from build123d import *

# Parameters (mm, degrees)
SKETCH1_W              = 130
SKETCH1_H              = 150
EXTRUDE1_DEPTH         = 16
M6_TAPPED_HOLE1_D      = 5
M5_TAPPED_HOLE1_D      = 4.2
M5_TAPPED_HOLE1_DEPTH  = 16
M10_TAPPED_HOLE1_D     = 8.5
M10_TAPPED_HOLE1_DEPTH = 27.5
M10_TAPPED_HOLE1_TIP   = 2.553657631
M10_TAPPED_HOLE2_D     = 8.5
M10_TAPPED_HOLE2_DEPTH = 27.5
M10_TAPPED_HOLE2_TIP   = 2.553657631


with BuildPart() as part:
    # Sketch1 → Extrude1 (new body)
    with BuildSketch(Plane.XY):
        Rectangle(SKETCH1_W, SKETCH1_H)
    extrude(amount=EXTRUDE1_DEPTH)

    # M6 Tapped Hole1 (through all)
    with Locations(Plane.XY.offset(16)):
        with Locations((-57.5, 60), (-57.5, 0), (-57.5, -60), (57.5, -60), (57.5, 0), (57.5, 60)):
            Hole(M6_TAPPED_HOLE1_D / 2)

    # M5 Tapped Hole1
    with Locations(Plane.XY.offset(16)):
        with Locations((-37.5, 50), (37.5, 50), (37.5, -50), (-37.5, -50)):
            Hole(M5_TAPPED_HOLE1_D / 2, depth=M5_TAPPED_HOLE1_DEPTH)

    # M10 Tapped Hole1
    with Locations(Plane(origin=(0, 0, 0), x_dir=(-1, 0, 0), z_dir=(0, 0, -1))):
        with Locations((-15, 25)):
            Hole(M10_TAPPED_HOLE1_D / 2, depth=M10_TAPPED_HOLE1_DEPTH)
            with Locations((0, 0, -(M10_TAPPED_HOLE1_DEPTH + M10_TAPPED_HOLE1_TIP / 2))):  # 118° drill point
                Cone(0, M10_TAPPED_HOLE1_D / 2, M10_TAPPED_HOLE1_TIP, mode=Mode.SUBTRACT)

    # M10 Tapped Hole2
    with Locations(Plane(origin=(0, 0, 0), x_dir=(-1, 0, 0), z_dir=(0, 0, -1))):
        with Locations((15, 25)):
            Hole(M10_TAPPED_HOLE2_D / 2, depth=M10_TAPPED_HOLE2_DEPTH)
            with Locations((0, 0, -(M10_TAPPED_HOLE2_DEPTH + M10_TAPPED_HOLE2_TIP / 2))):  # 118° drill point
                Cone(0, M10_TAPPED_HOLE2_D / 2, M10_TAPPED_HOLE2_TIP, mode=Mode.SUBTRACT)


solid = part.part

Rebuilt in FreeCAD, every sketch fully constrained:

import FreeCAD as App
import Part
import Sketcher

doc = App.newDocument("Part")
params = doc.addObject("Spreadsheet::Sheet", "Params")
for row, (alias, value) in enumerate([
    ("sketch1_width", "130 mm"),
    ("sketch1_height", "150 mm"),
    ("pad1_length", "16 mm"),
    ("sketch2_diameter", "5 mm"),
    ("hole_diameter", "5 mm"),
    ("sketch3_diameter", "4.2 mm"),
    ("hole2_diameter", "4.2 mm"),
    ("hole2_depth", "16 mm"),
    ("sketch4_diameter", "8.5 mm"),
    ("hole3_diameter", "8.5 mm"),
    ("hole3_depth", "27.5 mm"),
    ("sketch5_diameter", "8.5 mm"),
    ("hole4_diameter", "8.5 mm"),
    ("hole4_depth", "27.5 mm"),
], start=1):
    params.set(f"A{row}", alias)
    params.set(f"B{row}", "=" + value)
    params.setAlias(f"B{row}", alias)

body = doc.addObject("PartDesign::Body", "Body")

sketch1 = doc.addObject("Sketcher::SketchObject", "Sketch")
body.addObject(sketch1)
sketch1.AttachmentSupport = (doc.XY_Plane, [""])
sketch1.MapMode = "FlatFace"
sketch1.addGeometry(Part.LineSegment(App.Vector(-65, 75, 0), App.Vector(-65, -75, 0)), False)
sketch1.addGeometry(Part.LineSegment(App.Vector(-65, -75, 0), App.Vector(65, -75, 0)), False)
sketch1.addGeometry(Part.LineSegment(App.Vector(65, -75, 0), App.Vector(65, 75, 0)), False)
sketch1.addGeometry(Part.LineSegment(App.Vector(65, 75, 0), App.Vector(-65, 75, 0)), False)
sketch1.addConstraint(Sketcher.Constraint("Coincident", 0, 2, 1, 1))
sketch1.addConstraint(Sketcher.Constraint("Coincident", 1, 2, 2, 1))
sketch1.addConstraint(Sketcher.Constraint("Coincident", 2, 2, 3, 1))
sketch1.addConstraint(Sketcher.Constraint("Coincident", 3, 2, 0, 1))
sketch1.addConstraint(Sketcher.Constraint("Vertical", 0))
sketch1.addConstraint(Sketcher.Constraint("Horizontal", 1))
sketch1.addConstraint(Sketcher.Constraint("Vertical", 2))
sketch1.addConstraint(Sketcher.Constraint("Horizontal", 3))
sketch1.addConstraint(Sketcher.Constraint("Symmetric", 0, 2, 2, 2, -1, 1))
sketch1.addConstraint(Sketcher.Constraint("DistanceX", 1, 1, 1, 2, 130.0))
sketch1.addConstraint(Sketcher.Constraint("DistanceY", 0, 2, 0, 1, 150.0))
sketch1.setExpression("Constraints[9]", "Params.sketch1_width")
sketch1.setExpression("Constraints[10]", "Params.sketch1_height")
pad1 = doc.addObject("PartDesign::Pad", "Pad")
body.addObject(pad1)
pad1.Profile = sketch1
pad1.setExpression("Length", "Params.pad1_length")

sketch2 = doc.addObject("Sketcher::SketchObject", "Sketch001")
body.addObject(sketch2)
sketch2.AttachmentSupport = (doc.XY_Plane, [""])
sketch2.MapMode = "FlatFace"
sketch2.AttachmentOffset = App.Placement(App.Vector(0, 0, 16), App.Rotation())
sketch2.addGeometry(Part.Circle(App.Vector(-57.5, 60, 0), App.Vector(0, 0, 1), 2.5), False)
sketch2.addGeometry(Part.Circle(App.Vector(-57.5, 0, 0), App.Vector(0, 0, 1), 2.5), False)
sketch2.addGeometry(Part.Circle(App.Vector(-57.5, -60, 0), App.Vector(0, 0, 1), 2.5), False)
sketch2.addGeometry(Part.Circle(App.Vector(57.5, -60, 0), App.Vector(0, 0, 1), 2.5), False)
sketch2.addGeometry(Part.Circle(App.Vector(57.5, 0, 0), App.Vector(0, 0, 1), 2.5), False)
sketch2.addGeometry(Part.Circle(App.Vector(57.5, 60, 0), App.Vector(0, 0, 1), 2.5), False)
sketch2.addConstraint(Sketcher.Constraint("Equal", 0, 1))
sketch2.addConstraint(Sketcher.Constraint("Equal", 1, 2))
sketch2.addConstraint(Sketcher.Constraint("Equal", 2, 3))
sketch2.addConstraint(Sketcher.Constraint("Equal", 3, 4))
sketch2.addConstraint(Sketcher.Constraint("Equal", 4, 5))
sketch2.addConstraint(Sketcher.Constraint("Symmetric", 0, 3, 3, 3, -1, 1))
sketch2.addConstraint(Sketcher.Constraint("Symmetric", 1, 3, 4, 3, -1, 1))
sketch2.addConstraint(Sketcher.Constraint("Symmetric", 2, 3, 5, 3, -1, 1))
sketch2.addConstraint(Sketcher.Constraint("Symmetric", 2, 3, 3, 3, -2))
sketch2.addConstraint(Sketcher.Constraint("PointOnObject", 1, 3, -1))
sketch2.addConstraint(Sketcher.Constraint("Vertical", 0, 3, 1, 3))
sketch2.addConstraint(Sketcher.Constraint("Diameter", 0, 5.0))
sketch2.addConstraint(Sketcher.Constraint("DistanceY", -1, 1, 0, 3, 60.0))
sketch2.addConstraint(Sketcher.Constraint("DistanceX", 2, 3, 3, 3, 115.0))
sketch2.setExpression("Constraints[11]", "Params.sketch2_diameter")
doc.recompute()
hole = doc.addObject("PartDesign::Hole", "Hole")
body.addObject(hole)
hole.Profile = sketch2
hole.ThreadType = "None"
hole.setExpression("Diameter", "Params.hole_diameter")
hole.DepthType = "ThroughAll"

sketch3 = doc.addObject("Sketcher::SketchObject", "Sketch002")
body.addObject(sketch3)
sketch3.AttachmentSupport = (doc.XY_Plane, [""])
sketch3.MapMode = "FlatFace"
sketch3.AttachmentOffset = App.Placement(App.Vector(0, 0, 16), App.Rotation())
sketch3.addGeometry(Part.Circle(App.Vector(-37.5, 50, 0), App.Vector(0, 0, 1), 2.1), False)
sketch3.addGeometry(Part.Circle(App.Vector(37.5, 50, 0), App.Vector(0, 0, 1), 2.1), False)
sketch3.addGeometry(Part.Circle(App.Vector(37.5, -50, 0), App.Vector(0, 0, 1), 2.1), False)
sketch3.addGeometry(Part.Circle(App.Vector(-37.5, -50, 0), App.Vector(0, 0, 1), 2.1), False)
sketch3.addConstraint(Sketcher.Constraint("Equal", 0, 1))
sketch3.addConstraint(Sketcher.Constraint("Equal", 1, 2))
sketch3.addConstraint(Sketcher.Constraint("Equal", 2, 3))
sketch3.addConstraint(Sketcher.Constraint("Symmetric", 0, 3, 2, 3, -1, 1))
sketch3.addConstraint(Sketcher.Constraint("Symmetric", 1, 3, 3, 3, -1, 1))
sketch3.addConstraint(Sketcher.Constraint("Symmetric", 0, 3, 1, 3, -2))
sketch3.addConstraint(Sketcher.Constraint("Diameter", 0, 4.2))
sketch3.addConstraint(Sketcher.Constraint("DistanceY", -1, 1, 0, 3, 50.0))
sketch3.addConstraint(Sketcher.Constraint("DistanceX", 0, 3, 1, 3, 75.0))
sketch3.setExpression("Constraints[6]", "Params.sketch3_diameter")
doc.recompute()
hole2 = doc.addObject("PartDesign::Hole", "Hole001")
body.addObject(hole2)
hole2.Profile = sketch3
hole2.ThreadType = "None"
hole2.setExpression("Diameter", "Params.hole2_diameter")
hole2.DepthType = "Dimension"
hole2.setExpression("Depth", "Params.hole2_depth")
hole2.DrillPoint = "Flat"

sketch4 = doc.addObject("Sketcher::SketchObject", "Sketch003")
body.addObject(sketch4)
sketch4.AttachmentSupport = (doc.XY_Plane, [""])
sketch4.MapMode = "FlatFace"
sketch4.addGeometry(Part.Circle(App.Vector(15, 25, 0), App.Vector(0, 0, 1), 4.2), False)
sketch4.addConstraint(Sketcher.Constraint("Diameter", 0, 8.5))
sketch4.addConstraint(Sketcher.Constraint("DistanceX", -1, 1, 0, 3, 15.0))
sketch4.addConstraint(Sketcher.Constraint("DistanceY", -1, 1, 0, 3, 25.0))
sketch4.setExpression("Constraints[0]", "Params.sketch4_diameter")
doc.recompute()
hole3 = doc.addObject("PartDesign::Hole", "Hole002")
body.addObject(hole3)
hole3.Profile = sketch4
hole3.ThreadType = "None"
hole3.setExpression("Diameter", "Params.hole3_diameter")
hole3.DepthType = "Dimension"
hole3.setExpression("Depth", "Params.hole3_depth")
hole3.DrillPoint = "Angled"
hole3.DrillPointAngle = 118
hole3.Reversed = True

sketch5 = doc.addObject("Sketcher::SketchObject", "Sketch004")
body.addObject(sketch5)
sketch5.AttachmentSupport = (doc.XY_Plane, [""])
sketch5.MapMode = "FlatFace"
sketch5.addGeometry(Part.Circle(App.Vector(-15, 25, 0), App.Vector(0, 0, 1), 4.2), False)
sketch5.addConstraint(Sketcher.Constraint("Diameter", 0, 8.5))
sketch5.addConstraint(Sketcher.Constraint("DistanceX", 0, 3, -1, 1, 15.0))
sketch5.addConstraint(Sketcher.Constraint("DistanceY", -1, 1, 0, 3, 25.0))
sketch5.setExpression("Constraints[0]", "Params.sketch5_diameter")
doc.recompute()
hole4 = doc.addObject("PartDesign::Hole", "Hole003")
body.addObject(hole4)
hole4.Profile = sketch5
hole4.ThreadType = "None"
hole4.setExpression("Diameter", "Params.hole4_diameter")
hole4.DepthType = "Dimension"
hole4.setExpression("Depth", "Params.hole4_depth")
hole4.DrillPoint = "Angled"
hole4.DrillPointAngle = 118
hole4.Reversed = True

doc.recompute()
